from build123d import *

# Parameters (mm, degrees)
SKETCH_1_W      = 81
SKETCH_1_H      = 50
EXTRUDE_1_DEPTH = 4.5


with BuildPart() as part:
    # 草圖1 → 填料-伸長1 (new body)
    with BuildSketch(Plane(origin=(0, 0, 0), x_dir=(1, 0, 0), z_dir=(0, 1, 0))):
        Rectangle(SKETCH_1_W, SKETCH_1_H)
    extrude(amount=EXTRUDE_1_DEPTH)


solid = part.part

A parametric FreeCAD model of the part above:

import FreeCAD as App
import Part
import Sketcher
from FreeCAD import Vector


def add_polygon(sketch, points):
    """Adds a closed chain of lines whose ends are joined by coincident constraints."""
    first, n = sketch.GeometryCount, len(points)
    for a, b in zip(points, points[1:] + points[:1]):
        sketch.addGeometry(Part.LineSegment(App.Vector(*a, 0), App.Vector(*b, 0)), False)
    for i in range(n):
        sketch.addConstraint(Sketcher.Constraint("Coincident", first + i, 2, first + (i + 1) % n, 1))

doc = App.newDocument("Part")
body = doc.addObject("PartDesign::Body", "Body")

sketch1 = body.newObject("Sketcher::SketchObject", "Sketch")
sketch1.AttachmentSupport = (doc.getObject("XZ_Plane"), [""])
sketch1.MapMode = "FlatFace"
add_polygon(sketch1, [(-40, -25), (-40, 25), (40, 25), (40, -25)])
sketch1.addConstraint([
    Sketcher.Constraint("Vertical", 0),
    Sketcher.Constraint("Horizontal", 1),
    Sketcher.Constraint("Vertical", 2),
    Sketcher.Constraint("Horizontal", 3),
    Sketcher.Constraint("Symmetric", 0, 2, 2, 2, -1, 1),
    Sketcher.Constraint("DistanceX", 1, 1, 1, 2, 81.0),
    Sketcher.Constraint("DistanceY", 0, 1, 0, 2, 50.0),
])
pad1 = body.newObject("PartDesign::Pad", "Pad")
pad1.Profile = sketch1
pad1.Length = 4.5
pad1.Reversed = True

doc.recompute()
